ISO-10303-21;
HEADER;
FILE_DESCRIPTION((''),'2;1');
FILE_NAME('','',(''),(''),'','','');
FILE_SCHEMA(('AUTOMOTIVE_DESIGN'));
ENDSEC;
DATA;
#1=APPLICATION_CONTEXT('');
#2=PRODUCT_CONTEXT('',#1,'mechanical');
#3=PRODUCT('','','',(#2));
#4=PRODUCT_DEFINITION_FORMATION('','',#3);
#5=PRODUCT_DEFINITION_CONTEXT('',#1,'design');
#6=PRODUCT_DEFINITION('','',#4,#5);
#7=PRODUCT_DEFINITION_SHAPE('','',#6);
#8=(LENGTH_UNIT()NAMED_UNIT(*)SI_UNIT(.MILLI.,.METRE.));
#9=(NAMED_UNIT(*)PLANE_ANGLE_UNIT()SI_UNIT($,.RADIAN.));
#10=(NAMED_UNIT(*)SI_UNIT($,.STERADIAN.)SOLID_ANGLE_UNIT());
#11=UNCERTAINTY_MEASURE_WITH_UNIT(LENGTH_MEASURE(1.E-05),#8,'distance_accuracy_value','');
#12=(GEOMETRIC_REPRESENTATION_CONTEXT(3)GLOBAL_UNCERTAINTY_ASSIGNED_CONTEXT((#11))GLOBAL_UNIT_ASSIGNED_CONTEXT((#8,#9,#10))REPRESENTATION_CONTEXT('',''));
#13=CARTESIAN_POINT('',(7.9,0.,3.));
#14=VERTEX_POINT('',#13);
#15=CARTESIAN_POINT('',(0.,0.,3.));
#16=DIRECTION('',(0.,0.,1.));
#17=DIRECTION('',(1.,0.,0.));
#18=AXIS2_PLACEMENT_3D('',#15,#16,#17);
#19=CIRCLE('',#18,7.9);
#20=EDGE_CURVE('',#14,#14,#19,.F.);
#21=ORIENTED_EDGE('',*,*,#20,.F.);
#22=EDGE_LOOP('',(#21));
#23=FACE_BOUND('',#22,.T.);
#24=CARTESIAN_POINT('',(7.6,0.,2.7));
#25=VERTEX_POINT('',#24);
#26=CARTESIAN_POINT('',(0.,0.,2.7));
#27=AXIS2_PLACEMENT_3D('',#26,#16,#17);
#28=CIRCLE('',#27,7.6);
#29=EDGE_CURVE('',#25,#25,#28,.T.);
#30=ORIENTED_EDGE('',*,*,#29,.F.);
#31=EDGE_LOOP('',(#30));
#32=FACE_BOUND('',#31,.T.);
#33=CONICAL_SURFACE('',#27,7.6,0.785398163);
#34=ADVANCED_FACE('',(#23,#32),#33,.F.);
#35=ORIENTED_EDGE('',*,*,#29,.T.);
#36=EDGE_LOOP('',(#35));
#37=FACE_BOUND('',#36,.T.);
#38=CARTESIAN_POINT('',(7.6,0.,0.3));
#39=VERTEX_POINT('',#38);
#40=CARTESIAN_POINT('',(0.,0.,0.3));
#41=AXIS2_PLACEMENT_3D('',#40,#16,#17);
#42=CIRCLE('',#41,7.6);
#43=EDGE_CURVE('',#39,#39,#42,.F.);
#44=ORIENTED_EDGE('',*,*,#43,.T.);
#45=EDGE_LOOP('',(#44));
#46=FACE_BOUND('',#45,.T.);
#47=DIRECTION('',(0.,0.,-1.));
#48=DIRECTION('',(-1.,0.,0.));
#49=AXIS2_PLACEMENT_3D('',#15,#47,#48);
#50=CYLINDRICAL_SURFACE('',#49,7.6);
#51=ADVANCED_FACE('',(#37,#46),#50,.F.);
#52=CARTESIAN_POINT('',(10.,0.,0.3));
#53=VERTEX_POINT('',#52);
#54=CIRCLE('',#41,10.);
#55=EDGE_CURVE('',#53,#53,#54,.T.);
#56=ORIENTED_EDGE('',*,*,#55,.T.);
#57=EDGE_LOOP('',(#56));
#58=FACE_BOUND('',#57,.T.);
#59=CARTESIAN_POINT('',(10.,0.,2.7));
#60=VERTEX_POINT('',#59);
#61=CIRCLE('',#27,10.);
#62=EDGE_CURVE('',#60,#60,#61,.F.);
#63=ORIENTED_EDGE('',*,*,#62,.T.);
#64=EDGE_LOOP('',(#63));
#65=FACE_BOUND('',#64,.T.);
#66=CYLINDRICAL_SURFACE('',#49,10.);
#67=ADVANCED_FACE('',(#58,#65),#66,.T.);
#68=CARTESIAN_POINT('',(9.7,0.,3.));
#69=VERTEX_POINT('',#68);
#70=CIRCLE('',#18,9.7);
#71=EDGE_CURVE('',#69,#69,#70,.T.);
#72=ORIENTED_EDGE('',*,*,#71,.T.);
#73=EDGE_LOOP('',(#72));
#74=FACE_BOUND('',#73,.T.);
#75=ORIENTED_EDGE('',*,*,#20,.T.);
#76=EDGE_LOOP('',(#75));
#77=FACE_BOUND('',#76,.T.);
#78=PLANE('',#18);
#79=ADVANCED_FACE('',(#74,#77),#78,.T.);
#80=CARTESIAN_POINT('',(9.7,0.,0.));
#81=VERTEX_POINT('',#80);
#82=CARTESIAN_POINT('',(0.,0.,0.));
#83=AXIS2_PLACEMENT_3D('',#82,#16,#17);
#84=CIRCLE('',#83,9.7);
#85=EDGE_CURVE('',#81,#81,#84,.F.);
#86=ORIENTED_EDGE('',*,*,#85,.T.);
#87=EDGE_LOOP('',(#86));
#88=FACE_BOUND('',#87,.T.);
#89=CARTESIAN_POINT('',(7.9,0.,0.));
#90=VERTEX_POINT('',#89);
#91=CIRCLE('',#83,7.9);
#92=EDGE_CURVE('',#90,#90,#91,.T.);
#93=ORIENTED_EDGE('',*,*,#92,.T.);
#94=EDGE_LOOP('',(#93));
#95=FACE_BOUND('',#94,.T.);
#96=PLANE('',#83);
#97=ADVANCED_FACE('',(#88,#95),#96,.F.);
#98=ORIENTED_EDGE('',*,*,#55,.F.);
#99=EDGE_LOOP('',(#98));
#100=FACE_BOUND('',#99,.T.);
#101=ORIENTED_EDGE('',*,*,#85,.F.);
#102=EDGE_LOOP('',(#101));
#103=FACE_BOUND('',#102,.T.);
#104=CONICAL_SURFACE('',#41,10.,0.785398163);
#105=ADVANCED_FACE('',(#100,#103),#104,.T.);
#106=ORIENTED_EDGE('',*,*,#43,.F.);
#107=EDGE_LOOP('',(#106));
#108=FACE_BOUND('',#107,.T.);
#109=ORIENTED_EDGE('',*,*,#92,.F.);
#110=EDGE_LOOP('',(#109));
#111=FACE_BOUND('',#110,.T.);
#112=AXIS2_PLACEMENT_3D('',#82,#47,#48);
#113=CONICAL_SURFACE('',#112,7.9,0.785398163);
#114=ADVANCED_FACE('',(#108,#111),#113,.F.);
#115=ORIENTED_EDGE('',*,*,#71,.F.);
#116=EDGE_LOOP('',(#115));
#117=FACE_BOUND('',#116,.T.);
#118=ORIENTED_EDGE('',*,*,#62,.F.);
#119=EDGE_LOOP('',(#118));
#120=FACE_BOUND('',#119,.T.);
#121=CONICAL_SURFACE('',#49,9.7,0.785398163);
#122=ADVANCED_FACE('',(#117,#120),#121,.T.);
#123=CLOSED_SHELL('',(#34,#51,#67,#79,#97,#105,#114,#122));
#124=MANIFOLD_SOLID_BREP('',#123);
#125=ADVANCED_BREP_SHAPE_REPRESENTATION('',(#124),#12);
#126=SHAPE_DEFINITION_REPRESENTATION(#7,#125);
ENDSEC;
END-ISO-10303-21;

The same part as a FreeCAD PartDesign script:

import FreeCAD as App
import Part
import Sketcher

V = App.Vector


def edges_at(feature, points):
    """Names of the edges that pass closest to the given points."""
    edges = feature.Shape.Edges
    near = lambda p: min(range(len(edges)), key=lambda i: edges[i].distToShape(Part.Vertex(*p))[0])
    return sorted({f"Edge{near(p) + 1}" for p in points})

doc = App.newDocument("Part")
body = doc.addObject("PartDesign::Body", "Body")

# Sketch on XY plane
sketch1 = doc.addObject("Sketcher::SketchObject", "Sketch")
body.addObject(sketch1)
sketch1.AttachmentSupport = (doc.XY_Plane, [""])
sketch1.MapMode = "FlatFace"
sketch1.addGeometry([
    Part.Circle(V(0, 0, 0), V(0, 0, 1), 10),
    Part.Circle(V(0, 0, 0), V(0, 0, 1), 8),
], False)
sketch1.addConstraint([
    Sketcher.Constraint("Coincident", 0, 3, -1, 1),
    Sketcher.Constraint("Coincident", 1, 3, -1, 1),
    Sketcher.Constraint("Diameter", 0, 20.0),
    Sketcher.Constraint("Diameter", 1, 15.2),
])
pad1 = doc.addObject("PartDesign::Pad", "Pad")
body.addObject(pad1)
pad1.Profile = sketch1
pad1.Length = 3
doc.recompute()

chamfer = doc.addObject("PartDesign::Chamfer", "Chamfer")
body.addObject(chamfer)
chamfer.Base = (pad1, edges_at(pad1, [
    (-10, 0, 0),
    (-10, 0, 3),
    (-7.6, 0, 0),
    (-7.6, 0, 3),
]))
chamfer.Size = 0.3

doc.recompute()
